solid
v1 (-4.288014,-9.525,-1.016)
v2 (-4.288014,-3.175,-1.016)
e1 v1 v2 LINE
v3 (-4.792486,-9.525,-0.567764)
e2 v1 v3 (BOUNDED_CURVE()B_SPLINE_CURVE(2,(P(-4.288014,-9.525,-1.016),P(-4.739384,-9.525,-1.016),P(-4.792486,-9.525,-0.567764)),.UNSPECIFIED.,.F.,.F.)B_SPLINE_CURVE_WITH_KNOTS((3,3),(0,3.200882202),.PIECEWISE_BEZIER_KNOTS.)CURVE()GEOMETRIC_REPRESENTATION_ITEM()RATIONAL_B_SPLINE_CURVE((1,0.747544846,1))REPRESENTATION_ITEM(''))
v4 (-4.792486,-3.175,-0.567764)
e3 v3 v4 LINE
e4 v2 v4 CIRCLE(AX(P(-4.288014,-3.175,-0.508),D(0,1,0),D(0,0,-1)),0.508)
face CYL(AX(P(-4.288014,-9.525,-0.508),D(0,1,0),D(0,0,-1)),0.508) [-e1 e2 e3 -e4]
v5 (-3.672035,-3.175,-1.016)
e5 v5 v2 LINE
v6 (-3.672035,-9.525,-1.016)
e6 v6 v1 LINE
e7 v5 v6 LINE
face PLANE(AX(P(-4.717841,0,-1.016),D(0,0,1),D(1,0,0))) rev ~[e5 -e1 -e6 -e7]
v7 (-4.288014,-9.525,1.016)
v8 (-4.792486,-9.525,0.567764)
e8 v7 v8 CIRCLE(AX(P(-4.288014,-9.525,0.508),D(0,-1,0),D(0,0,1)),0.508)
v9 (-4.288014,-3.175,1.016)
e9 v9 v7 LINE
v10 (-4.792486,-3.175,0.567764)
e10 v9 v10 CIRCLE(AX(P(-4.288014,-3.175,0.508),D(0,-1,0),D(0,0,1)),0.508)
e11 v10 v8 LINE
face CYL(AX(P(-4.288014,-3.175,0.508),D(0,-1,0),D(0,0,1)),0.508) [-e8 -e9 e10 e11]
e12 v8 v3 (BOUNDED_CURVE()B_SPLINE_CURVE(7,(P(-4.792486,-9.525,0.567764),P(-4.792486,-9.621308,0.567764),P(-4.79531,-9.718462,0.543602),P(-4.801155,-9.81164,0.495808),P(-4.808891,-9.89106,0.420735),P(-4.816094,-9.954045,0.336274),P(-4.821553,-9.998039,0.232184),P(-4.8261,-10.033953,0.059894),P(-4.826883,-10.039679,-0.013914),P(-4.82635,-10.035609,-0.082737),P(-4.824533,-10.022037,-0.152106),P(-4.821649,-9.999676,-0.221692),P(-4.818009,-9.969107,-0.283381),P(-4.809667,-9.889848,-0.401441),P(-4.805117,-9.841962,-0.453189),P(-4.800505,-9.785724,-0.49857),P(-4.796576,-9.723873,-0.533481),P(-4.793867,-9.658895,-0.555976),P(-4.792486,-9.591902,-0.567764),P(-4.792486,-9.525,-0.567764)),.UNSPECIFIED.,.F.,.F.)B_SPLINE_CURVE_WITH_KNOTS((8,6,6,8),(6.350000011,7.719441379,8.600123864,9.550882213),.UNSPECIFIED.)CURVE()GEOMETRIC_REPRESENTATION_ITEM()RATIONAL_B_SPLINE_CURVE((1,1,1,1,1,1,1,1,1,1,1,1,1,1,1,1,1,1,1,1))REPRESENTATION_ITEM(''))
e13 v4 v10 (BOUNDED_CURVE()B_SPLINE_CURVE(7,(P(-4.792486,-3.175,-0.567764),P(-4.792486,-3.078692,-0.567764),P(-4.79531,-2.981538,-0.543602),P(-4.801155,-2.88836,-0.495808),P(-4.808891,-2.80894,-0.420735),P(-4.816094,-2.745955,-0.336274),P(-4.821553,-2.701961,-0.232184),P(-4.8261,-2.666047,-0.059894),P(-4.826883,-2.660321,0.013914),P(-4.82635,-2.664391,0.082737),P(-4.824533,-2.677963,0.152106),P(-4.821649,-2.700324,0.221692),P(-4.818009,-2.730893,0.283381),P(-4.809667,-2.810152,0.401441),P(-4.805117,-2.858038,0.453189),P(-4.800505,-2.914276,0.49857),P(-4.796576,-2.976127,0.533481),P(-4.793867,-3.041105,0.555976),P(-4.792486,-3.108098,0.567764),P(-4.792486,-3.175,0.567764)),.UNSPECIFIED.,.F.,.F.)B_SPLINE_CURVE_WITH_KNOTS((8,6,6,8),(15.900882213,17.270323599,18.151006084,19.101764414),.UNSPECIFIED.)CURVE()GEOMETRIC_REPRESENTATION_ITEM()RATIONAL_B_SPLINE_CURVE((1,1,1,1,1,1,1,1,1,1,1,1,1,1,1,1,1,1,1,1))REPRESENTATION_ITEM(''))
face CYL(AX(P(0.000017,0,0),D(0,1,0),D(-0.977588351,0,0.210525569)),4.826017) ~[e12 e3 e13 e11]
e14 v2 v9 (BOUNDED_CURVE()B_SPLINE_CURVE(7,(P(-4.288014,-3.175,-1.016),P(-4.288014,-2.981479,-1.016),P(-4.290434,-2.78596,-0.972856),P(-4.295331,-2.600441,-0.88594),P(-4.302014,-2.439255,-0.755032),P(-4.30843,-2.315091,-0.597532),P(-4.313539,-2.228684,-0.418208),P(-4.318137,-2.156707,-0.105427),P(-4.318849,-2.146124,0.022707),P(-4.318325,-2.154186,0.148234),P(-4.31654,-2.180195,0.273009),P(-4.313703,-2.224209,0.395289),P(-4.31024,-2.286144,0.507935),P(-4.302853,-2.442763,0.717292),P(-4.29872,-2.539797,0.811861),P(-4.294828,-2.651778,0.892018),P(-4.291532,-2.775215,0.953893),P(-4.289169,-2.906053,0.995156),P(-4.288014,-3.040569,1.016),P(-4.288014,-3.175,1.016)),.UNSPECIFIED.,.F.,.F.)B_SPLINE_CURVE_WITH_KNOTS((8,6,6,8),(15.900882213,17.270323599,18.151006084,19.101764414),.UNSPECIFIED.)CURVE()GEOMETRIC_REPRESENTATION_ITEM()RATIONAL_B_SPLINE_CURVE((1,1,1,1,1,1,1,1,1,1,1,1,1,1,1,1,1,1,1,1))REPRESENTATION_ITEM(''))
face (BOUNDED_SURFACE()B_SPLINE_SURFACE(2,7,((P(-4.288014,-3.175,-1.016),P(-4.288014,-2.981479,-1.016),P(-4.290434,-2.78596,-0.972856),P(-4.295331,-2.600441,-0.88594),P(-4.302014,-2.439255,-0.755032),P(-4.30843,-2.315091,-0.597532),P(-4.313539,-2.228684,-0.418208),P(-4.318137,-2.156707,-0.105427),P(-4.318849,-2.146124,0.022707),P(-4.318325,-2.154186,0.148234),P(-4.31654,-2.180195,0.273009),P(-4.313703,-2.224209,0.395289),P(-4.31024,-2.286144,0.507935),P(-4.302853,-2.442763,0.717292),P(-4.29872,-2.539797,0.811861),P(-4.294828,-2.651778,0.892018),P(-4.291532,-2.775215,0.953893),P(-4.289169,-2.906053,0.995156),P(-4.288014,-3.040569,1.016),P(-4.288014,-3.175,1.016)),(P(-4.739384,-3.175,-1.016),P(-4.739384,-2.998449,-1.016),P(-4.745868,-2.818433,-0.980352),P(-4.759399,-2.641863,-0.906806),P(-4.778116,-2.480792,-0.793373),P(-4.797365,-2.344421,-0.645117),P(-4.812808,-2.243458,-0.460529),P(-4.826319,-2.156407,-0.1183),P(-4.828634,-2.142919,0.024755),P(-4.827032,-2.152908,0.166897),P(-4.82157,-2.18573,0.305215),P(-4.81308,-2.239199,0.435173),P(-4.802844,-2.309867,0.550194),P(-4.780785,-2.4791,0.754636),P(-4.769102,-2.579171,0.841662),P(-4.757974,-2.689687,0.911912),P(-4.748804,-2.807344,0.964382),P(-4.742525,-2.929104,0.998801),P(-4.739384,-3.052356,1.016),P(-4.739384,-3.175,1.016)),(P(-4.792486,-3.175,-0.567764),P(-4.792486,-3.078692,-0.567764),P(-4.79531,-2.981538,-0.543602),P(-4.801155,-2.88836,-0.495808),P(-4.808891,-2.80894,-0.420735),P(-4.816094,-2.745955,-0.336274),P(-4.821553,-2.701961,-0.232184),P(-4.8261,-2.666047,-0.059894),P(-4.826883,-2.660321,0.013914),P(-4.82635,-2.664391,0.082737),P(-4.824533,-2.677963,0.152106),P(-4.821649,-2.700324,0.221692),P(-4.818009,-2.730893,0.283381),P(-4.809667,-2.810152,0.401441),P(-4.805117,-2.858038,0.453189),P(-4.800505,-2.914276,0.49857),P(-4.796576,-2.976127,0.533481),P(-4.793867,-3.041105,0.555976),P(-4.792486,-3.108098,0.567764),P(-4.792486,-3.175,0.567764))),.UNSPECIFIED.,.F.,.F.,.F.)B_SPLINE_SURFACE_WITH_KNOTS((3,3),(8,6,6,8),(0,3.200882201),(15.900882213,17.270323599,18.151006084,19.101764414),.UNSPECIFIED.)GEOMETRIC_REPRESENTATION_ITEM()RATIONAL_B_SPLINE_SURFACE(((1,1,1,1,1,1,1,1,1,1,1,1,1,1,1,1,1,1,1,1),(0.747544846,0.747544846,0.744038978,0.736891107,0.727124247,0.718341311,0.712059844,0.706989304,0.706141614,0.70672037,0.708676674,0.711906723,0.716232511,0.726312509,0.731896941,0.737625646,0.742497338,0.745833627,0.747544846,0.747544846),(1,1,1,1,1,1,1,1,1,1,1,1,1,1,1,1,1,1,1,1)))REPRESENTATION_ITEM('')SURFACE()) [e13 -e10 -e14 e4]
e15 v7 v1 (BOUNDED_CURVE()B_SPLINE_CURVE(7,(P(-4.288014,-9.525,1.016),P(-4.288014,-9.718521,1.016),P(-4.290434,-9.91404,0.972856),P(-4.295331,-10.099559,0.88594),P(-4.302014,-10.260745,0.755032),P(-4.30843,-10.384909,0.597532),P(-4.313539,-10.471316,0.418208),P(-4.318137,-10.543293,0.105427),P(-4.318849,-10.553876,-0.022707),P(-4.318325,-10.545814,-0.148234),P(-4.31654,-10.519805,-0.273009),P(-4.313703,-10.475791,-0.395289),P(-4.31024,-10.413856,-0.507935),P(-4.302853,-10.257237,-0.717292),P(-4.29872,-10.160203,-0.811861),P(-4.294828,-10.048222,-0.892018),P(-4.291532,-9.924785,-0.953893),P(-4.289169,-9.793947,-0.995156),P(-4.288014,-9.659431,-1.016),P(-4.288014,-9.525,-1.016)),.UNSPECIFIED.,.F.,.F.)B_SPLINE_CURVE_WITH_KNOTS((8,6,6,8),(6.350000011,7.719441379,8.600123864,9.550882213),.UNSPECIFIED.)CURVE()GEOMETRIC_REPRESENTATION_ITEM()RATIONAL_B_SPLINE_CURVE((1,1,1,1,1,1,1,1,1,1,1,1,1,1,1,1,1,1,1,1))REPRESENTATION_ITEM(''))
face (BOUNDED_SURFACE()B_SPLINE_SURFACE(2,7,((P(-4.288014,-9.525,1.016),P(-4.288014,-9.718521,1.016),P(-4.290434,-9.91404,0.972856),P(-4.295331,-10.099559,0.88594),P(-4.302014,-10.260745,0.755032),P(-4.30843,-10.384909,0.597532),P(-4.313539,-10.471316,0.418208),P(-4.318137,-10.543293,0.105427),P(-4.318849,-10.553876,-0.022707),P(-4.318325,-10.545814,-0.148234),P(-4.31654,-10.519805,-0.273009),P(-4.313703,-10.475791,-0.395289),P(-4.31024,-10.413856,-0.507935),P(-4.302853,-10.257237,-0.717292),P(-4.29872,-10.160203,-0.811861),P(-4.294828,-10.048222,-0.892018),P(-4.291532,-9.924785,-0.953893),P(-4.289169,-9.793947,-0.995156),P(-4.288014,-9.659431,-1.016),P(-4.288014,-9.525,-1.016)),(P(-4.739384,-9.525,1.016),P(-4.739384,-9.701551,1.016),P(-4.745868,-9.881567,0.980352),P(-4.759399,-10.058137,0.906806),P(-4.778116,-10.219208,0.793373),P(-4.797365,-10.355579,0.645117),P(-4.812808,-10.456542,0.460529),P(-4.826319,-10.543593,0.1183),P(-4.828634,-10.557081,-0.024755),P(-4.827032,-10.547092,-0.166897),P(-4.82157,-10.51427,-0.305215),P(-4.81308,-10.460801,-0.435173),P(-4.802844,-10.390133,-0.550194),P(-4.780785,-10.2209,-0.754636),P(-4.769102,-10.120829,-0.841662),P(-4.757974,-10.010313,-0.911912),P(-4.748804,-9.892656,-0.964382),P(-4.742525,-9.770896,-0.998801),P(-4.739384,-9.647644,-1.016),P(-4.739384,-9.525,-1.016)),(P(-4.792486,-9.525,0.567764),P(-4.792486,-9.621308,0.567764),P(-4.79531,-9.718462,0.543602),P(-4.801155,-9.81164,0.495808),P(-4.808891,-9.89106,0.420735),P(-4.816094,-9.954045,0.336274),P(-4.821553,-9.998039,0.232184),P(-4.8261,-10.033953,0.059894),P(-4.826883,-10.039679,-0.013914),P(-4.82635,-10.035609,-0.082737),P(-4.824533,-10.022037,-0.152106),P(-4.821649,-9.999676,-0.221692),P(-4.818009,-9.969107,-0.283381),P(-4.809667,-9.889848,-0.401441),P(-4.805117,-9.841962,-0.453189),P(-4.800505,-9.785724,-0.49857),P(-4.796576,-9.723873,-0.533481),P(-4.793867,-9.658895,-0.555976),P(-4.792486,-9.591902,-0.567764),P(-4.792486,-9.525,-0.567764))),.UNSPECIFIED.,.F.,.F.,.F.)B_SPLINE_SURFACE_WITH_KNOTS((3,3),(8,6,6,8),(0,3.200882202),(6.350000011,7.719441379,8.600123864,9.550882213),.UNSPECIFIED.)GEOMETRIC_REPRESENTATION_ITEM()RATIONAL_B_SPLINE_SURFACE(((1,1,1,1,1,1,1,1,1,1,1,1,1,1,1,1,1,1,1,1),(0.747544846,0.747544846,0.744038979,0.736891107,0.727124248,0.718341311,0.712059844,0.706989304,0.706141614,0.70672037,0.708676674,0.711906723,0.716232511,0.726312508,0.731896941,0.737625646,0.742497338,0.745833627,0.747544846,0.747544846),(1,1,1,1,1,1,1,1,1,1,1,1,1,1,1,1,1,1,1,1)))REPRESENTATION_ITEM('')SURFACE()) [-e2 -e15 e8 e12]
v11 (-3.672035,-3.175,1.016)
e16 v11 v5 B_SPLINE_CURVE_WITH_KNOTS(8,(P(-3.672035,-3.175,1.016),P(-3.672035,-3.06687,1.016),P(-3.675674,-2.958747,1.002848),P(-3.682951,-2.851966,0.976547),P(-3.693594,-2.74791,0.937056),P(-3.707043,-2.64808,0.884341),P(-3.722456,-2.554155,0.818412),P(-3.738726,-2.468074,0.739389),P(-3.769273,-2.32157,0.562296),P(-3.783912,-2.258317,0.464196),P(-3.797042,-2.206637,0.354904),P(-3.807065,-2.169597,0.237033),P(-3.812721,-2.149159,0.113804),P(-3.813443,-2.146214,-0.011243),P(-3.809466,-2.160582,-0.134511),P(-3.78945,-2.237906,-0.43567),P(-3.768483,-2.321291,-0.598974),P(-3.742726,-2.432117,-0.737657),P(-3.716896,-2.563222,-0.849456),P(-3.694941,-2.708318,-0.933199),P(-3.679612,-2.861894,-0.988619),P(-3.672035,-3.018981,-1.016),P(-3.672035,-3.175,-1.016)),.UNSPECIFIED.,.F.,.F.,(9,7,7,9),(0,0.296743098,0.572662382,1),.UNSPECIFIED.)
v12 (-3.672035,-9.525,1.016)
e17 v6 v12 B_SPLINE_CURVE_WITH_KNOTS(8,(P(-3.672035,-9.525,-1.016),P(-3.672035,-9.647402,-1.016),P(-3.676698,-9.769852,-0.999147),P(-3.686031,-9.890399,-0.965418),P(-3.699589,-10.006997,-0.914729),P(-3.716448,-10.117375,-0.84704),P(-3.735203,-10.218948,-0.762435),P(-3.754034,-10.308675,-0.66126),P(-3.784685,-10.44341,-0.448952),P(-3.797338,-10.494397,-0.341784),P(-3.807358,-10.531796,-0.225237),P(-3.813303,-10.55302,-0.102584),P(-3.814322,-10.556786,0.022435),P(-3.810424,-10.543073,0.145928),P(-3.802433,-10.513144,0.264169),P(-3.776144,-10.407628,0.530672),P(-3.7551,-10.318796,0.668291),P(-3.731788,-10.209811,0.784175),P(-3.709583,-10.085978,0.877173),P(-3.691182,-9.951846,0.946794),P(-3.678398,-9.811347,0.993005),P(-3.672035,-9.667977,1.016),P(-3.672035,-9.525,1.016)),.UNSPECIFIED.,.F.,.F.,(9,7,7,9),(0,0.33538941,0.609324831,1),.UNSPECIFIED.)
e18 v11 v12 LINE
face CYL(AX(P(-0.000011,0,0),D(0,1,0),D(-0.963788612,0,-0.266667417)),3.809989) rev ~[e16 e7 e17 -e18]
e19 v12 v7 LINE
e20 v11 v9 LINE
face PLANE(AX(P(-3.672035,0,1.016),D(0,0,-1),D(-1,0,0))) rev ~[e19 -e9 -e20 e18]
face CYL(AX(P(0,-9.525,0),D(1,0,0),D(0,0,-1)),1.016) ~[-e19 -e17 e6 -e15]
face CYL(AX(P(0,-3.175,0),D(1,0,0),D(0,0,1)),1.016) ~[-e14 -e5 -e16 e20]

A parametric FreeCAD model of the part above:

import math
import FreeCAD as App
import Part
import Sketcher
from FreeCAD import Vector
Q = App.Units.Quantity


def edges_at(feature, points):
    """Names of the edges that pass closest to the given points."""
    edges = feature.Shape.Edges
    near = lambda p: min(range(len(edges)), key=lambda i: edges[i].distToShape(Part.Vertex(*p))[0])
    return sorted({f"Edge{near(p) + 1}" for p in points})

doc = App.newDocument("Part")
body = doc.addObject("PartDesign::Body", "Body")

# Sketch on XZ plane
sketch1 = doc.addObject("Sketcher::SketchObject", "Sketch")
body.addObject(sketch1)
sketch1.AttachmentSupport = (doc.XZ_Plane, [""])
sketch1.MapMode = "FlatFace"
sketch1.addGeometry(Part.ArcOfCircle(Part.Circle(Vector(-0.000011, 0, 0), Vector(0, 0, 1), 3.809989), math.radians(164.533945), math.radians(195.466055)), False)
sketch1.addGeometry(Part.LineSegment(Vector(-3.672035, 1.016, 0), Vector(-4.717841, 1.016, 0)), False)
sketch1.addGeometry(Part.ArcOfCircle(Part.Circle(Vector(0.000017, 0, 0), Vector(0, 0, 1), 4.826017), math.radians(167.846846), math.radians(192.153154)), False)
sketch1.addGeometry(Part.LineSegment(Vector(-4.717841, -1.016, 0), Vector(-3.672035, -1.016, 0)), False)
sketch1.addConstraint(Sketcher.Constraint("Coincident", 0, 1, 1, 1))
sketch1.addConstraint(Sketcher.Constraint("Coincident", 1, 2, 2, 1))
sketch1.addConstraint(Sketcher.Constraint("Coincident", 2, 2, 3, 1))
sketch1.addConstraint(Sketcher.Constraint("Coincident", 3, 2, 0, 2))
sketch1.addConstraint(Sketcher.Constraint("Horizontal", 1))
sketch1.addConstraint(Sketcher.Constraint("Horizontal", 3))
sketch1.addConstraint(Sketcher.Constraint("Symmetric", 0, 3, 2, 3, -1, 1))
sketch1.addConstraint(Sketcher.Constraint("Symmetric", 1, 2, 2, 2, -1))
sketch1.addConstraint(Sketcher.Constraint("DistanceY", -1, 1, 0, 1, Q("0.04 in")))
sketch1.addConstraint(Sketcher.Constraint("Radius", 0, 3.809989))
sketch1.addConstraint(Sketcher.Constraint("Radius", 2, 4.826017))
sketch1.addConstraint(Sketcher.Constraint("DistanceX", 1, 2, 1, 1, 1.045806))
pad1 = doc.addObject("PartDesign::Pad", "Pad")
body.addObject(pad1)
pad1.Profile = sketch1
pad1.Length = Q("0.5 in")

# Sketch on YZ plane
sketch2 = doc.addObject("Sketcher::SketchObject", "Sketch001")
body.addObject(sketch2)
sketch2.AttachmentSupport = (doc.YZ_Plane, [""])
sketch2.MapMode = "FlatFace"
sketch2.addGeometry(Part.LineSegment(Vector(-12.7, 1, 0), Vector(-12.7, -1, 0)), False)
sketch2.addGeometry(Part.LineSegment(Vector(-12.7, -1, 0), Vector(-9.5, -1, 0)), False)
sketch2.addGeometry(Part.ArcOfCircle(Part.Circle(Vector(-9.5, 0, 0), Vector(0, 0, 1), 1), math.radians(90), math.radians(270)), False)
sketch2.addGeometry(Part.LineSegment(Vector(-9.5, 1, 0), Vector(-12.7, 1, 0)), False)
sketch2.addGeometry(Part.ArcOfCircle(Part.Circle(Vector(-3.2, 0, 0), Vector(0, 0, 1), 1), math.radians(-90), math.radians(90)), False)
sketch2.addGeometry(Part.LineSegment(Vector(-3.2, -1, 0), Vector(0, -1, 0)), False)
sketch2.addGeometry(Part.LineSegment(Vector(0, -1, 0), Vector(0, 1, 0)), False)
sketch2.addGeometry(Part.LineSegment(Vector(0, 1, 0), Vector(-3.2, 1, 0)), False)
sketch2.addConstraint(Sketcher.Constraint("Coincident", 0, 2, 1, 1))
sketch2.addConstraint(Sketcher.Constraint("Tangent", 1, 2, 2, 2))
sketch2.addConstraint(Sketcher.Constraint("Tangent", 2, 1, 3, 1))
sketch2.addConstraint(Sketcher.Constraint("Coincident", 3, 2, 0, 1))
sketch2.addConstraint(Sketcher.Constraint("Tangent", 4, 1, 5, 1))
sketch2.addConstraint(Sketcher.Constraint("Coincident", 5, 2, 6, 1))
sketch2.addConstraint(Sketcher.Constraint("Coincident", 6, 2, 7, 1))
sketch2.addConstraint(Sketcher.Constraint("Tangent", 7, 2, 4, 2))
sketch2.addConstraint(Sketcher.Constraint("Vertical", 0))
sketch2.addConstraint(Sketcher.Constraint("Horizontal", 1))
sketch2.addConstraint(Sketcher.Constraint("Horizontal", 3))
sketch2.addConstraint(Sketcher.Constraint("Horizontal", 5))
sketch2.addConstraint(Sketcher.Constraint("Vertical", 6))
sketch2.addConstraint(Sketcher.Constraint("Horizontal", 7))
sketch2.addConstraint(Sketcher.Constraint("Equal", 2, 4))
sketch2.addConstraint(Sketcher.Constraint("Symmetric", 5, 2, 6, 2, -1, 1))
sketch2.addConstraint(Sketcher.Constraint("PointOnObject", 2, 3, -1))
sketch2.addConstraint(Sketcher.Constraint("Equal", 3, 5))
sketch2.addConstraint(Sketcher.Constraint("Radius", 2, Q("0.04 in")))
sketch2.addConstraint(Sketcher.Constraint("DistanceX", 0, 2, -1, 1, Q("0.5 in")))
sketch2.addConstraint(Sketcher.Constraint("DistanceX", 1, 1, 1, 2, Q("0.125 in")))
pocket1 = doc.addObject("PartDesign::Pocket", "Pocket")
body.addObject(pocket1)
pocket1.Profile = sketch2
pocket1.Length = Q("1 in")
doc.recompute()

fillet = doc.addObject("PartDesign::Fillet", "Fillet")
body.addObject(fillet)
fillet.Base = (pocket1, edges_at(pocket1, [(-4.718, -6.35, 1.016)]))
fillet.Radius = Q("0.02 in")

doc.recompute()
